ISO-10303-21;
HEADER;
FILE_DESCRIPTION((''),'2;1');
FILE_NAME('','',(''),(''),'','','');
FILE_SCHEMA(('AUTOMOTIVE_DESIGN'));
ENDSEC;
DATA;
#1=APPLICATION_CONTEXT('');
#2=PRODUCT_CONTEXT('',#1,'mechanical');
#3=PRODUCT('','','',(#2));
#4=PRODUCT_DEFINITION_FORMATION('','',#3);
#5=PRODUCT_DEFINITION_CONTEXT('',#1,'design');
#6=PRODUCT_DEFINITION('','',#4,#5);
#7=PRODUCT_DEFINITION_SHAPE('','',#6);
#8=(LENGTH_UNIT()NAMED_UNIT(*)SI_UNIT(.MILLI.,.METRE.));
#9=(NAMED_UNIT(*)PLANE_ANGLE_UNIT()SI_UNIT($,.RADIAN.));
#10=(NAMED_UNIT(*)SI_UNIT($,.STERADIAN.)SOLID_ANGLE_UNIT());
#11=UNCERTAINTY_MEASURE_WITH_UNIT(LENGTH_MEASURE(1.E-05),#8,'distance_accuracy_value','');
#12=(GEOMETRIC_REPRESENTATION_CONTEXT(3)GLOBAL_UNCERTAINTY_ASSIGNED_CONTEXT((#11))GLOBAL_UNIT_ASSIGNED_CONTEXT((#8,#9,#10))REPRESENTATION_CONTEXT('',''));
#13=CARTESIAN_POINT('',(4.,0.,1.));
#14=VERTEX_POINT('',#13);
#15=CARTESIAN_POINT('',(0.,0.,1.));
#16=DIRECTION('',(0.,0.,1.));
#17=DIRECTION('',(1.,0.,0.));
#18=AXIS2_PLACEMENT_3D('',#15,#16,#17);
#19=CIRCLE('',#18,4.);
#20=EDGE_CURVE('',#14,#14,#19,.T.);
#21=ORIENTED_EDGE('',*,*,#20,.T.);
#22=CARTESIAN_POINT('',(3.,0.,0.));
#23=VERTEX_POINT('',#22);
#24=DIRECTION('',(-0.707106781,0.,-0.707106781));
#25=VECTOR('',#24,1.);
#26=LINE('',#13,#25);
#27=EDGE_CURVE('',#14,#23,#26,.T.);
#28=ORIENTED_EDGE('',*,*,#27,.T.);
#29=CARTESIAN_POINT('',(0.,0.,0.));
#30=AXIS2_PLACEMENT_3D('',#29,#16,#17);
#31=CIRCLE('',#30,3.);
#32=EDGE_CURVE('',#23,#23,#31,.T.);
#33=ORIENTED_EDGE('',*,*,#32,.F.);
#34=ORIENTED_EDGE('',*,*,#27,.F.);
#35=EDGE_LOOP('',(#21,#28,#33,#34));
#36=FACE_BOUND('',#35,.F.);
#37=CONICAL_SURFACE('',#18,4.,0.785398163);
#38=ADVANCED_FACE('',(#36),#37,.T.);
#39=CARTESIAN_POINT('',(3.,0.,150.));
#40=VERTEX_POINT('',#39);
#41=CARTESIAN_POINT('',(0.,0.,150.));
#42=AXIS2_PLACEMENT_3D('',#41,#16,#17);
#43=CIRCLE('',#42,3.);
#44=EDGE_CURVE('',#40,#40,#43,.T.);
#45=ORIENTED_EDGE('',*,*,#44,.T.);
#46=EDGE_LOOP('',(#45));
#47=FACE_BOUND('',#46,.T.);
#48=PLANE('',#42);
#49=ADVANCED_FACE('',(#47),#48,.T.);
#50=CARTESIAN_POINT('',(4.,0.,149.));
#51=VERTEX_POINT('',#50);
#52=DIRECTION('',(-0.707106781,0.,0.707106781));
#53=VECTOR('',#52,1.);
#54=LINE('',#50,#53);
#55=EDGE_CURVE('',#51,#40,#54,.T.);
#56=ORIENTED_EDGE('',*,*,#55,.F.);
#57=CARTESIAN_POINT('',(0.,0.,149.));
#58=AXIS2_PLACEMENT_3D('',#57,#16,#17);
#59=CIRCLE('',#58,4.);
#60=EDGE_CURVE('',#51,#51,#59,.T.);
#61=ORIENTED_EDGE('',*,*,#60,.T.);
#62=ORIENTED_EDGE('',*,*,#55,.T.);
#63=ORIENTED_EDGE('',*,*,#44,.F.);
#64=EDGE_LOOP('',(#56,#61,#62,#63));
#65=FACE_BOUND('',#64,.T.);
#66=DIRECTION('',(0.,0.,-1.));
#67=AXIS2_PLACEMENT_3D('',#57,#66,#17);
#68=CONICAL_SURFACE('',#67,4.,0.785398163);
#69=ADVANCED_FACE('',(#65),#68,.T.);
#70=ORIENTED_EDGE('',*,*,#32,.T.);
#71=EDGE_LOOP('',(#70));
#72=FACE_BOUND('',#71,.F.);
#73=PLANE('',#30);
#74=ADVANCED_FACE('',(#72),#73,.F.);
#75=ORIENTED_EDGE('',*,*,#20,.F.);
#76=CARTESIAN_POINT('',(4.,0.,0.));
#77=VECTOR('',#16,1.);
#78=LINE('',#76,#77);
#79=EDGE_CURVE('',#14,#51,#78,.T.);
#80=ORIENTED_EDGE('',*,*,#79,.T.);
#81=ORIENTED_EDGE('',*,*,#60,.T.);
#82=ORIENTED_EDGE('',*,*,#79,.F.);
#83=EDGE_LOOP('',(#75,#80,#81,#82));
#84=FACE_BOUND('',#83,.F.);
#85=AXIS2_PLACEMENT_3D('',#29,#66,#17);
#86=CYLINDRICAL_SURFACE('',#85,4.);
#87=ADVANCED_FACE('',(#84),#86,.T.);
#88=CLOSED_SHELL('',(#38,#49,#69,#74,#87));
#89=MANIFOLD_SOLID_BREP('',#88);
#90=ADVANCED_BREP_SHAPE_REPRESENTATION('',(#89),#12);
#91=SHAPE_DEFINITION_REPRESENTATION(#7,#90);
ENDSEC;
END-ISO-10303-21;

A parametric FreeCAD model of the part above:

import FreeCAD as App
import Part
import Sketcher
from FreeCAD import Vector


def edges_at(feature, points):
    """Names of the edges that pass closest to the given points."""
    edges = feature.Shape.Edges
    near = lambda p: min(range(len(edges)), key=lambda i: edges[i].distToShape(Part.Vertex(*p))[0])
    return sorted({f"Edge{near(p) + 1}" for p in points})

doc = App.newDocument("Part")
body = doc.addObject("PartDesign::Body", "Body")

sketch1 = doc.addObject("Sketcher::SketchObject", "Sketch")
body.addObject(sketch1)
sketch1.AttachmentSupport = (doc.XY_Plane, [""])
sketch1.MapMode = "FlatFace"
sketch1.addGeometry(Part.Circle(Vector(0, 0, 0), Vector(0, 0, 1), 4), False)
sketch1.addConstraint(Sketcher.Constraint("Coincident", 0, 3, -1, 1))
sketch1.addConstraint(Sketcher.Constraint("Diameter", 0, 8.0))
pad1 = doc.addObject("PartDesign::Pad", "Pad")
body.addObject(pad1)
pad1.Profile = sketch1
pad1.Length = 150
doc.recompute()

chamfer = doc.addObject("PartDesign::Chamfer", "Chamfer")
body.addObject(chamfer)
chamfer.Base = (pad1, edges_at(pad1, [(-4, 0, 150)]))
chamfer.Size = 1
doc.recompute()

chamfer2 = doc.addObject("PartDesign::Chamfer", "Chamfer001")
body.addObject(chamfer2)
chamfer2.Base = (chamfer, edges_at(chamfer, [(-4, 0, 0)]))
chamfer2.Size = 1

doc.recompute()
